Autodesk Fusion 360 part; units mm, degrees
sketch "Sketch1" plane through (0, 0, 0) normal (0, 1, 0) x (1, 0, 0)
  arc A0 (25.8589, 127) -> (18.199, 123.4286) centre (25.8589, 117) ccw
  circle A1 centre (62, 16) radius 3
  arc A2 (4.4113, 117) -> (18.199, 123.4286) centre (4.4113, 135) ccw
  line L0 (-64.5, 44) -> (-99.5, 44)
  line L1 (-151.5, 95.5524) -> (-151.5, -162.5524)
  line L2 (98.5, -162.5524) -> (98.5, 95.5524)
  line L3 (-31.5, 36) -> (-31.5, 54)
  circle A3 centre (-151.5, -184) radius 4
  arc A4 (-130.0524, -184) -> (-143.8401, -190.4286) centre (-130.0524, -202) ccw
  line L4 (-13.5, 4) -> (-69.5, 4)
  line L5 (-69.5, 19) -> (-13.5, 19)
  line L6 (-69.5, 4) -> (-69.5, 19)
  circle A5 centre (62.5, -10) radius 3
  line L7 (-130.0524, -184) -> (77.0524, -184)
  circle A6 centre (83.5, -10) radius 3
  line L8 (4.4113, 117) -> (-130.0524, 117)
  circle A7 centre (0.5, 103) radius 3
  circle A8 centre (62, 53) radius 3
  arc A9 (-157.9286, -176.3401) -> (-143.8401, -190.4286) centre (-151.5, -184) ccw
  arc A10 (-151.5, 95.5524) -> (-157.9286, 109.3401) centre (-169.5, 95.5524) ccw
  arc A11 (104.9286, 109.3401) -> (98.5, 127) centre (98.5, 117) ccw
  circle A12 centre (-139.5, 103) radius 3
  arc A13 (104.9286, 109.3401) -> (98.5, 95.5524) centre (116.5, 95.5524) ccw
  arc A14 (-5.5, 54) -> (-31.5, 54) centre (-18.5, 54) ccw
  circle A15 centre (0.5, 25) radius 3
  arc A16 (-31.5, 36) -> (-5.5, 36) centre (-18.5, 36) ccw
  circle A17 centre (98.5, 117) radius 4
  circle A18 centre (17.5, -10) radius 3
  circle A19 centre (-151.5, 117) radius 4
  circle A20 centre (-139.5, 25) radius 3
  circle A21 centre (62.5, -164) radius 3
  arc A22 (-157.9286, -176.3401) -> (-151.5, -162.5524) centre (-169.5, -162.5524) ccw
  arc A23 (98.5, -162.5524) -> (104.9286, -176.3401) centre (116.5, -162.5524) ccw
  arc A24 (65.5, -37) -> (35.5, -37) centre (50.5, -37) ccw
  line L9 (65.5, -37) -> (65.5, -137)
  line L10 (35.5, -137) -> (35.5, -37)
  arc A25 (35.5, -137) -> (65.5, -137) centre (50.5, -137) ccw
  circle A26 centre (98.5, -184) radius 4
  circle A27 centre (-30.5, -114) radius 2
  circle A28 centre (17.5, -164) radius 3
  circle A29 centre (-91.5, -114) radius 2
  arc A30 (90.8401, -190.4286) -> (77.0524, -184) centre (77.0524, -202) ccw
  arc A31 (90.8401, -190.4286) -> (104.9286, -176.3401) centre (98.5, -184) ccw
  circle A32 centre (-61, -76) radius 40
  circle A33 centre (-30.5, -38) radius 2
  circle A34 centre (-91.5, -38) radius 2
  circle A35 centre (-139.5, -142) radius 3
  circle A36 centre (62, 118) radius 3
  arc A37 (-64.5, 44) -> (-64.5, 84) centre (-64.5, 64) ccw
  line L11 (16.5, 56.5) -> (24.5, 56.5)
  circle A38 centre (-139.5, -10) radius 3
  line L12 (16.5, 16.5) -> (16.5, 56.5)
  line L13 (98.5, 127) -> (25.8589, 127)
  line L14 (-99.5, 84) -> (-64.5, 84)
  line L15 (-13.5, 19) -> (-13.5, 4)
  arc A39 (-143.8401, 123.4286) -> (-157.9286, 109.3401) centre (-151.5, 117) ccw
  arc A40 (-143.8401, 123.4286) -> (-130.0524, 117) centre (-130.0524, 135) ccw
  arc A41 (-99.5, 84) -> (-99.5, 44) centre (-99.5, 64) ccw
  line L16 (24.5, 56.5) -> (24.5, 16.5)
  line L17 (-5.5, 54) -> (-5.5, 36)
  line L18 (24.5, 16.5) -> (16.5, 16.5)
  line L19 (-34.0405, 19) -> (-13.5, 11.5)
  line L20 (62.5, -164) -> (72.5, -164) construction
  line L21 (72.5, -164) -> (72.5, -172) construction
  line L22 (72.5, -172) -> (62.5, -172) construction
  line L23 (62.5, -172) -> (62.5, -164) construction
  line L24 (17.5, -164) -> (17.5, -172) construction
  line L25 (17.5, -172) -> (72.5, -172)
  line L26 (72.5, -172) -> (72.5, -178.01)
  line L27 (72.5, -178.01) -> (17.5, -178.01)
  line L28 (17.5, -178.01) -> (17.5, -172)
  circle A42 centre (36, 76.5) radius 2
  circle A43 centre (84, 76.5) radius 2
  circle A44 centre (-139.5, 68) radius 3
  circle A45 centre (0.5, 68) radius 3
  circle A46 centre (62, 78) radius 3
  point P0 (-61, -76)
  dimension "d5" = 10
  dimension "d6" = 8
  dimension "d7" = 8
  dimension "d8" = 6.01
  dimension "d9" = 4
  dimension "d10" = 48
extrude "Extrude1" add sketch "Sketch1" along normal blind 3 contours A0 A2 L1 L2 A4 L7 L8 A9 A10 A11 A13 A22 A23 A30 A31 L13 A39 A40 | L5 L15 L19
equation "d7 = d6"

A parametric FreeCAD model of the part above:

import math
import FreeCAD as App
import Part
import Sketcher


def add_polygon(sketch, points):
    """Adds a closed chain of lines whose ends are joined by coincident constraints."""
    first, n = sketch.GeometryCount, len(points)
    for a, b in zip(points, points[1:] + points[:1]):
        sketch.addGeometry(Part.LineSegment(App.Vector(*a, 0), App.Vector(*b, 0)), False)
    for i in range(n):
        sketch.addConstraint(Sketcher.Constraint("Coincident", first + i, 2, first + (i + 1) % n, 1))

doc = App.newDocument("Part")
body = doc.addObject("PartDesign::Body", "Body")

# Sketch on XZ plane
sketch1 = doc.addObject("Sketcher::SketchObject", "Sketch")
body.addObject(sketch1)
sketch1.AttachmentSupport = (doc.XZ_Plane, [""])
sketch1.MapMode = "FlatFace"
sketch1.addGeometry(Part.LineSegment(App.Vector(98.5, -127, 0), App.Vector(25.8589, -127, 0)), False)  # 0
sketch1.addGeometry(Part.ArcOfCircle(Part.Circle(App.Vector(25.8589, -117, 0), App.Vector(0, 0, 1), 10), math.radians(-139.994818), math.radians(-90)), False)  # 1
sketch1.addGeometry(Part.ArcOfCircle(Part.Circle(App.Vector(4.4113, -135, 0), App.Vector(0, 0, 1), 18), math.radians(40.005233), math.radians(90)), False)  # 2
sketch1.addGeometry(Part.LineSegment(App.Vector(4.4113, -117, 0), App.Vector(-130.0524, -117, 0)), False)  # 3
sketch1.addGeometry(Part.ArcOfCircle(Part.Circle(App.Vector(-130.0524, -135, 0), App.Vector(0, 0, 1), 17.999944), math.radians(90), math.radians(139.994767)), False)  # 4
sketch1.addGeometry(Part.ArcOfCircle(Part.Circle(App.Vector(-151.5, -117, 0), App.Vector(0, 0, 1), 10.000048), math.radians(130.005182), math.radians(319.994818)), False)  # 5
sketch1.addGeometry(Part.ArcOfCircle(Part.Circle(App.Vector(-169.5, -95.5524, 0), App.Vector(0, 0, 1), 18), math.radians(-49.994767), math.radians(0)), False)  # 6
sketch1.addGeometry(Part.LineSegment(App.Vector(-151.5, -95.5524, 0), App.Vector(-151.5, 162.5524, 0)), False)  # 7
sketch1.addGeometry(Part.ArcOfCircle(Part.Circle(App.Vector(-169.5, 162.5524, 0), App.Vector(0, 0, 1), 17.999944), math.radians(0), math.radians(49.994767)), False)  # 8
sketch1.addGeometry(Part.ArcOfCircle(Part.Circle(App.Vector(-151.5, 184, 0), App.Vector(0, 0, 1), 10.000048), math.radians(40.005182), math.radians(229.994818)), False)  # 9
sketch1.addGeometry(Part.ArcOfCircle(Part.Circle(App.Vector(-130.0524, 202, 0), App.Vector(0, 0, 1), 18), math.radians(-139.994767), math.radians(-90)), False)  # 10
sketch1.addGeometry(Part.LineSegment(App.Vector(-130.0524, 184, 0), App.Vector(77.0524, 184, 0)), False)  # 11
sketch1.addGeometry(Part.ArcOfCircle(Part.Circle(App.Vector(77.0524, 202, 0), App.Vector(0, 0, 1), 17.999944), math.radians(-90), math.radians(-40.005233)), False)  # 12
sketch1.addGeometry(Part.ArcOfCircle(Part.Circle(App.Vector(98.5, 184, 0), App.Vector(0, 0, 1), 10.000048), math.radians(-49.994818), math.radians(139.994818)), False)  # 13
sketch1.addGeometry(Part.ArcOfCircle(Part.Circle(App.Vector(116.5, 162.5524, 0), App.Vector(0, 0, 1), 18), math.radians(130.005233), math.radians(180)), False)  # 14
sketch1.addGeometry(Part.LineSegment(App.Vector(98.5, 162.5524, 0), App.Vector(98.5, -95.5524, 0)), False)  # 15
sketch1.addGeometry(Part.ArcOfCircle(Part.Circle(App.Vector(116.5, -95.5524, 0), App.Vector(0, 0, 1), 17.999944), math.radians(180), math.radians(229.994767)), False)  # 16
sketch1.addGeometry(Part.ArcOfCircle(Part.Circle(App.Vector(98.5, -117, 0), App.Vector(0, 0, 1), 10.000048), math.radians(-90), math.radians(49.994818)), False)  # 17
sketch1.addGeometry(Part.Circle(App.Vector(-151.5, 184, 0), App.Vector(0, 0, 1), 4), False)  # 18
sketch1.addGeometry(Part.Circle(App.Vector(-139.5, 142, 0), App.Vector(0, 0, 1), 3), False)  # 19
sketch1.addGeometry(Part.Circle(App.Vector(-91.5, 114, 0), App.Vector(0, 0, 1), 2), False)  # 20
sketch1.addGeometry(Part.Circle(App.Vector(-30.5, 114, 0), App.Vector(0, 0, 1), 2), False)  # 21
sketch1.addGeometry(Part.Circle(App.Vector(-61, 76, 0), App.Vector(0, 0, 1), 40), False)  # 22
sketch1.addGeometry(Part.Circle(App.Vector(-91.5, 38, 0), App.Vector(0, 0, 1), 2), False)  # 23
sketch1.addGeometry(Part.Circle(App.Vector(-30.5, 38, 0), App.Vector(0, 0, 1), 2), False)  # 24
sketch1.addGeometry(Part.Circle(App.Vector(17.5, 164, 0), App.Vector(0, 0, 1), 3), False)  # 25
add_polygon(sketch1, [(17.5, 178.01), (17.5, 172), (72.5, 172), (72.5, 178.01)])  # lines 26-29
sketch1.addGeometry(Part.Circle(App.Vector(62.5, 164, 0), App.Vector(0, 0, 1), 3), False)  # 30
sketch1.addGeometry(Part.Circle(App.Vector(98.5, 184, 0), App.Vector(0, 0, 1), 4), False)  # 31
sketch1.addGeometry(Part.ArcOfCircle(Part.Circle(App.Vector(50.5, 37, 0), App.Vector(0, 0, 1), 15), math.radians(180), math.radians(360)), False)  # 32
sketch1.addGeometry(Part.LineSegment(App.Vector(65.5, 37, 0), App.Vector(65.5, 137, 0)), False)  # 33
sketch1.addGeometry(Part.ArcOfCircle(Part.Circle(App.Vector(50.5, 137, 0), App.Vector(0, 0, 1), 15), math.radians(0), math.radians(180)), False)  # 34
sketch1.addGeometry(Part.LineSegment(App.Vector(35.5, 137, 0), App.Vector(35.5, 37, 0)), False)  # 35
sketch1.addGeometry(Part.Circle(App.Vector(-139.5, 10, 0), App.Vector(0, 0, 1), 3), False)  # 36
sketch1.addGeometry(Part.Circle(App.Vector(-139.5, -25, 0), App.Vector(0, 0, 1), 3), False)  # 37
add_polygon(sketch1, [(-13.5, -11.5), (-13.5, -4), (-69.5, -4), (-69.5, -19), (-34.0405, -19)])  # lines 38-42
sketch1.addGeometry(Part.Circle(App.Vector(-139.5, -68, 0), App.Vector(0, 0, 1), 3), False)  # 43
sketch1.addGeometry(Part.Circle(App.Vector(-139.5, -103, 0), App.Vector(0, 0, 1), 3), False)  # 44
sketch1.addGeometry(Part.Circle(App.Vector(-151.5, -117, 0), App.Vector(0, 0, 1), 4), False)  # 45
sketch1.addGeometry(Part.ArcOfCircle(Part.Circle(App.Vector(-64.5, -64, 0), App.Vector(0, 0, 1), 20), math.radians(-90), math.radians(90)), False)  # 46
sketch1.addGeometry(Part.LineSegment(App.Vector(-64.5, -44, 0), App.Vector(-99.5, -44, 0)), False)  # 47
sketch1.addGeometry(Part.ArcOfCircle(Part.Circle(App.Vector(-99.5, -64, 0), App.Vector(0, 0, 1), 20), math.radians(90), math.radians(270)), False)  # 48
sketch1.addGeometry(Part.LineSegment(App.Vector(-99.5, -84, 0), App.Vector(-64.5, -84, 0)), False)  # 49
sketch1.addGeometry(Part.Circle(App.Vector(17.5, 10, 0), App.Vector(0, 0, 1), 3), False)  # 50
sketch1.addGeometry(Part.Circle(App.Vector(0.5, -25, 0), App.Vector(0, 0, 1), 3), False)  # 51
sketch1.addGeometry(Part.ArcOfCircle(Part.Circle(App.Vector(-18.5, -36, 0), App.Vector(0, 0, 1), 13), math.radians(0), math.radians(180)), False)  # 52
sketch1.addGeometry(Part.LineSegment(App.Vector(-31.5, -36, 0), App.Vector(-31.5, -54, 0)), False)  # 53
sketch1.addGeometry(Part.ArcOfCircle(Part.Circle(App.Vector(-18.5, -54, 0), App.Vector(0, 0, 1), 13), math.radians(180), math.radians(360)), False)  # 54
sketch1.addGeometry(Part.LineSegment(App.Vector(-5.5, -54, 0), App.Vector(-5.5, -36, 0)), False)  # 55
add_polygon(sketch1, [(16.5, -16.5), (16.5, -56.5), (24.5, -56.5), (24.5, -16.5)])  # lines 56-59
sketch1.addGeometry(Part.Circle(App.Vector(62.5, 10, 0), App.Vector(0, 0, 1), 3), False)  # 60
sketch1.addGeometry(Part.Circle(App.Vector(83.5, 10, 0), App.Vector(0, 0, 1), 3), False)  # 61
sketch1.addGeometry(Part.Circle(App.Vector(62, -16, 0), App.Vector(0, 0, 1), 3), False)  # 62
sketch1.addGeometry(Part.Circle(App.Vector(0.5, -68, 0), App.Vector(0, 0, 1), 3), False)  # 63
sketch1.addGeometry(Part.Circle(App.Vector(36, -76.5, 0), App.Vector(0, 0, 1), 2), False)  # 64
sketch1.addGeometry(Part.Circle(App.Vector(0.5, -103, 0), App.Vector(0, 0, 1), 3), False)  # 65
sketch1.addGeometry(Part.Circle(App.Vector(62, -53, 0), App.Vector(0, 0, 1), 3), False)  # 66
sketch1.addGeometry(Part.Circle(App.Vector(62, -78, 0), App.Vector(0, 0, 1), 3), False)  # 67
sketch1.addGeometry(Part.Circle(App.Vector(84, -76.5, 0), App.Vector(0, 0, 1), 2), False)  # 68
sketch1.addGeometry(Part.Circle(App.Vector(62, -118, 0), App.Vector(0, 0, 1), 3), False)  # 69
sketch1.addGeometry(Part.Circle(App.Vector(98.5, -117, 0), App.Vector(0, 0, 1), 4), False)  # 70
sketch1.addConstraint(Sketcher.Constraint("Tangent", 0, 2, 1, 2))
sketch1.addConstraint(Sketcher.Constraint("Tangent", 1, 1, 2, 1))
sketch1.addConstraint(Sketcher.Constraint("Tangent", 2, 2, 3, 1))
sketch1.addConstraint(Sketcher.Constraint("Tangent", 3, 2, 4, 1))
sketch1.addConstraint(Sketcher.Constraint("Tangent", 4, 2, 5, 2))
sketch1.addConstraint(Sketcher.Constraint("Tangent", 5, 1, 6, 1))
sketch1.addConstraint(Sketcher.Constraint("Tangent", 6, 2, 7, 1))
sketch1.addConstraint(Sketcher.Constraint("Tangent", 7, 2, 8, 1))
sketch1.addConstraint(Sketcher.Constraint("Tangent", 8, 2, 9, 2))
sketch1.addConstraint(Sketcher.Constraint("Tangent", 9, 1, 10, 1))
sketch1.addConstraint(Sketcher.Constraint("Tangent", 10, 2, 11, 1))
sketch1.addConstraint(Sketcher.Constraint("Tangent", 11, 2, 12, 1))
sketch1.addConstraint(Sketcher.Constraint("Tangent", 12, 2, 13, 2))
sketch1.addConstraint(Sketcher.Constraint("Tangent", 13, 1, 14, 1))
sketch1.addConstraint(Sketcher.Constraint("Tangent", 14, 2, 15, 1))
sketch1.addConstraint(Sketcher.Constraint("Tangent", 15, 2, 16, 1))
sketch1.addConstraint(Sketcher.Constraint("Tangent", 16, 2, 17, 2))
sketch1.addConstraint(Sketcher.Constraint("Tangent", 17, 1, 0, 1))
sketch1.addConstraint(Sketcher.Constraint("Tangent", 32, 2, 33, 1))
sketch1.addConstraint(Sketcher.Constraint("Tangent", 33, 2, 34, 1))
sketch1.addConstraint(Sketcher.Constraint("Tangent", 34, 2, 35, 1))
sketch1.addConstraint(Sketcher.Constraint("Tangent", 35, 2, 32, 1))
sketch1.addConstraint(Sketcher.Constraint("Tangent", 46, 2, 47, 1))
sketch1.addConstraint(Sketcher.Constraint("Tangent", 47, 2, 48, 1))
sketch1.addConstraint(Sketcher.Constraint("Tangent", 48, 2, 49, 1))
sketch1.addConstraint(Sketcher.Constraint("Tangent", 49, 2, 46, 1))
sketch1.addConstraint(Sketcher.Constraint("Tangent", 52, 2, 53, 1))
sketch1.addConstraint(Sketcher.Constraint("Tangent", 53, 2, 54, 1))
sketch1.addConstraint(Sketcher.Constraint("Tangent", 54, 2, 55, 1))
sketch1.addConstraint(Sketcher.Constraint("Tangent", 55, 2, 52, 1))
sketch1.addConstraint(Sketcher.Constraint("Horizontal", 0))
sketch1.addConstraint(Sketcher.Constraint("Horizontal", 3))
sketch1.addConstraint(Sketcher.Constraint("Vertical", 7))
sketch1.addConstraint(Sketcher.Constraint("Horizontal", 11))
sketch1.addConstraint(Sketcher.Constraint("Vertical", 15))
sketch1.addConstraint(Sketcher.Constraint("Vertical", 26))
sketch1.addConstraint(Sketcher.Constraint("Horizontal", 27))
sketch1.addConstraint(Sketcher.Constraint("Vertical", 28))
sketch1.addConstraint(Sketcher.Constraint("Horizontal", 29))
sketch1.addConstraint(Sketcher.Constraint("Vertical", 33))
sketch1.addConstraint(Sketcher.Constraint("Vertical", 35))
sketch1.addConstraint(Sketcher.Constraint("Vertical", 38))
sketch1.addConstraint(Sketcher.Constraint("Horizontal", 39))
sketch1.addConstraint(Sketcher.Constraint("Vertical", 40))
sketch1.addConstraint(Sketcher.Constraint("Horizontal", 41))
sketch1.addConstraint(Sketcher.Constraint("Horizontal", 47))
sketch1.addConstraint(Sketcher.Constraint("Horizontal", 49))
sketch1.addConstraint(Sketcher.Constraint("Vertical", 53))
sketch1.addConstraint(Sketcher.Constraint("Vertical", 55))
sketch1.addConstraint(Sketcher.Constraint("Vertical", 56))
sketch1.addConstraint(Sketcher.Constraint("Horizontal", 57))
sketch1.addConstraint(Sketcher.Constraint("Vertical", 58))
sketch1.addConstraint(Sketcher.Constraint("Horizontal", 59))
sketch1.addConstraint(Sketcher.Constraint("Coincident", 18, 3, 9, 3))
sketch1.addConstraint(Sketcher.Constraint("Coincident", 31, 3, 13, 3))
sketch1.addConstraint(Sketcher.Constraint("Coincident", 45, 3, 5, 3))
sketch1.addConstraint(Sketcher.Constraint("Coincident", 70, 3, 17, 3))
sketch1.addConstraint(Sketcher.Constraint("Equal", 2, 4))
sketch1.addConstraint(Sketcher.Constraint("Equal", 1, 5))
sketch1.addConstraint(Sketcher.Constraint("Equal", 4, 6))
sketch1.addConstraint(Sketcher.Constraint("Equal", 6, 8))
sketch1.addConstraint(Sketcher.Constraint("Equal", 5, 9))
sketch1.addConstraint(Sketcher.Constraint("Equal", 8, 10))
sketch1.addConstraint(Sketcher.Constraint("Equal", 10, 12))
sketch1.addConstraint(Sketcher.Constraint("Equal", 9, 13))
sketch1.addConstraint(Sketcher.Constraint("Equal", 12, 14))
sketch1.addConstraint(Sketcher.Constraint("Equal", 14, 16))
sketch1.addConstraint(Sketcher.Constraint("Equal", 13, 17))
sketch1.addConstraint(Sketcher.Constraint("Equal", 20, 21))
sketch1.addConstraint(Sketcher.Constraint("Equal", 21, 23))
sketch1.addConstraint(Sketcher.Constraint("Equal", 23, 24))
sketch1.addConstraint(Sketcher.Constraint("Equal", 19, 25))
sketch1.addConstraint(Sketcher.Constraint("Equal", 25, 30))
sketch1.addConstraint(Sketcher.Constraint("Equal", 18, 31))
sketch1.addConstraint(Sketcher.Constraint("Equal", 30, 36))
sketch1.addConstraint(Sketcher.Constraint("Equal", 36, 37))
sketch1.addConstraint(Sketcher.Constraint("Equal", 37, 43))
sketch1.addConstraint(Sketcher.Constraint("Equal", 43, 44))
sketch1.addConstraint(Sketcher.Constraint("Equal", 31, 45))
sketch1.addConstraint(Sketcher.Constraint("Equal", 44, 50))
sketch1.addConstraint(Sketcher.Constraint("Equal", 50, 51))
sketch1.addConstraint(Sketcher.Constraint("Equal", 51, 60))
sketch1.addConstraint(Sketcher.Constraint("Equal", 60, 61))
sketch1.addConstraint(Sketcher.Constraint("Equal", 61, 62))
sketch1.addConstraint(Sketcher.Constraint("Equal", 62, 63))
sketch1.addConstraint(Sketcher.Constraint("Equal", 24, 64))
sketch1.addConstraint(Sketcher.Constraint("Equal", 63, 65))
sketch1.addConstraint(Sketcher.Constraint("Equal", 65, 66))
sketch1.addConstraint(Sketcher.Constraint("Equal", 66, 67))
sketch1.addConstraint(Sketcher.Constraint("Equal", 64, 68))
sketch1.addConstraint(Sketcher.Constraint("Equal", 67, 69))
sketch1.addConstraint(Sketcher.Constraint("Equal", 45, 70))
sketch1.addConstraint(Sketcher.Constraint("Horizontal", 1, 3, 5, 3))
sketch1.addConstraint(Sketcher.Constraint("Horizontal", 9, 3, 13, 3))
sketch1.addConstraint(Sketcher.Constraint("Horizontal", 8, 3, 14, 3))
sketch1.addConstraint(Sketcher.Constraint("Horizontal", 6, 3, 16, 3))
sketch1.addConstraint(Sketcher.Constraint("Horizontal", 20, 3, 21, 3))
sketch1.addConstraint(Sketcher.Constraint("Horizontal", 23, 3, 24, 3))
sketch1.addConstraint(Sketcher.Constraint("Horizontal", 25, 3, 30, 3))
sketch1.addConstraint(Sketcher.Constraint("Horizontal", 36, 3, 50, 3))
sketch1.addConstraint(Sketcher.Constraint("Horizontal", 37, 3, 51, 3))
sketch1.addConstraint(Sketcher.Constraint("Horizontal", 50, 3, 60, 3))
sketch1.addConstraint(Sketcher.Constraint("Horizontal", 60, 3, 61, 3))
sketch1.addConstraint(Sketcher.Constraint("Horizontal", 43, 3, 63, 3))
sketch1.addConstraint(Sketcher.Constraint("Horizontal", 44, 3, 65, 3))
sketch1.addConstraint(Sketcher.Constraint("Horizontal", 64, 3, 68, 3))
sketch1.addConstraint(Sketcher.Constraint("Horizontal", 70, 3, 2, 2))
sketch1.addConstraint(Sketcher.Constraint("Horizontal", 31, 3, 10, 2))
sketch1.addConstraint(Sketcher.Constraint("Vertical", 5, 3, 9, 3))
sketch1.addConstraint(Sketcher.Constraint("Vertical", 20, 3, 23, 3))
sketch1.addConstraint(Sketcher.Constraint("Vertical", 21, 3, 24, 3))
sketch1.addConstraint(Sketcher.Constraint("Vertical", 19, 3, 36, 3))
sketch1.addConstraint(Sketcher.Constraint("Vertical", 36, 3, 37, 3))
sketch1.addConstraint(Sketcher.Constraint("Vertical", 37, 3, 43, 3))
sketch1.addConstraint(Sketcher.Constraint("Vertical", 43, 3, 44, 3))
sketch1.addConstraint(Sketcher.Constraint("Vertical", 25, 3, 50, 3))
sketch1.addConstraint(Sketcher.Constraint("Vertical", 30, 3, 60, 3))
sketch1.addConstraint(Sketcher.Constraint("Vertical", 51, 3, 63, 3))
sketch1.addConstraint(Sketcher.Constraint("Vertical", 63, 3, 65, 3))
sketch1.addConstraint(Sketcher.Constraint("Vertical", 62, 3, 66, 3))
sketch1.addConstraint(Sketcher.Constraint("Vertical", 66, 3, 67, 3))
sketch1.addConstraint(Sketcher.Constraint("Vertical", 67, 3, 69, 3))
sketch1.addConstraint(Sketcher.Constraint("Vertical", 45, 3, 6, 2))
sketch1.addConstraint(Sketcher.Constraint("Vertical", 50, 3, 26, 2))
sketch1.addConstraint(Sketcher.Constraint("Diameter", 18, 8.0))
sketch1.addConstraint(Sketcher.Constraint("Diameter", 20, 4.0))
sketch1.addConstraint(Sketcher.Constraint("Radius", 1, 10.0))
sketch1.addConstraint(Sketcher.Constraint("DistanceX", 57, 1, 57, 2, 8.0))
sketch1.addConstraint(Sketcher.Constraint("Diameter", 19, 6.0))
sketch1.addConstraint(Sketcher.Constraint("Diameter", 22, 80.0))
sketch1.addConstraint(Sketcher.Constraint("DistanceY", -1, 1, 36, 3, 10.0))
sketch1.addConstraint(Sketcher.Constraint("DistanceY", 38, 2, -1, 1, 4.0))
sketch1.addConstraint(Sketcher.Constraint("Radius", 2, 18.0))
sketch1.addConstraint(Sketcher.Constraint("Radius", 32, 15.0))
sketch1.addConstraint(Sketcher.Constraint("Radius", 46, 20.0))
sketch1.addConstraint(Sketcher.Constraint("Radius", 52, 13.0))
sketch1.addConstraint(Sketcher.Constraint("DistanceY", 26, 2, 26, 1, 6.01))
sketch1.addConstraint(Sketcher.Constraint("DistanceX", 27, 1, 27, 2, 55.0))
sketch1.addConstraint(Sketcher.Constraint("DistanceX", 39, 2, 39, 1, 56.0))
sketch1.addConstraint(Sketcher.Constraint("DistanceX", 47, 2, 47, 1, 35.0))
sketch1.addConstraint(Sketcher.Constraint("DistanceY", 33, 1, 33, 2, 100.0))
sketch1.addConstraint(Sketcher.Constraint("DistanceY", 40, 2, 40, 1, 15.0))
sketch1.addConstraint(Sketcher.Constraint("DistanceY", 53, 2, 53, 1, 18.0))
sketch1.addConstraint(Sketcher.Constraint("DistanceY", 56, 2, 56, 1, 40.0))
sketch1.addConstraint(Sketcher.Constraint("DistanceY", 38, 1, 38, 2, 7.5))
sketch1.addConstraint(Sketcher.Constraint("DistanceY", 1, 3, -1, 1, 117.0))
sketch1.addConstraint(Sketcher.Constraint("DistanceY", -1, 1, 9, 3, 184.0))
sketch1.addConstraint(Sketcher.Constraint("DistanceY", -1, 1, 19, 3, 142.0))
sketch1.addConstraint(Sketcher.Constraint("DistanceY", -1, 1, 20, 3, 114.0))
sketch1.addConstraint(Sketcher.Constraint("DistanceX", 22, 3, -1, 1, 61.0))
sketch1.addConstraint(Sketcher.Constraint("DistanceY", -1, 1, 22, 3, 76.0))
sketch1.addConstraint(Sketcher.Constraint("DistanceY", -1, 1, 23, 3, 38.0))
sketch1.addConstraint(Sketcher.Constraint("DistanceY", -1, 1, 25, 3, 164.0))
sketch1.addConstraint(Sketcher.Constraint("DistanceY", -1, 1, 32, 3, 37.0))
sketch1.addConstraint(Sketcher.Constraint("DistanceY", 37, 3, -1, 1, 25.0))
sketch1.addConstraint(Sketcher.Constraint("DistanceY", 43, 3, -1, 1, 68.0))
sketch1.addConstraint(Sketcher.Constraint("DistanceY", 44, 3, -1, 1, 103.0))
sketch1.addConstraint(Sketcher.Constraint("DistanceY", 46, 3, -1, 1, 64.0))
sketch1.addConstraint(Sketcher.Constraint("DistanceY", 52, 3, -1, 1, 36.0))
sketch1.addConstraint(Sketcher.Constraint("DistanceX", -1, 1, 62, 3, 62.0))
sketch1.addConstraint(Sketcher.Constraint("DistanceY", 62, 3, -1, 1, 16.0))
sketch1.addConstraint(Sketcher.Constraint("DistanceX", -1, 1, 64, 3, 36.0))
sketch1.addConstraint(Sketcher.Constraint("DistanceY", 66, 3, -1, 1, 53.0))
sketch1.addConstraint(Sketcher.Constraint("DistanceY", 67, 3, -1, 1, 78.0))
sketch1.addConstraint(Sketcher.Constraint("DistanceX", -1, 1, 68, 3, 84.0))
sketch1.addConstraint(Sketcher.Constraint("DistanceY", 69, 3, -1, 1, 118.0))
sketch1.addConstraint(Sketcher.Constraint("DistanceY", -1, 1, 26, 2, 172.0))
sketch1.addConstraint(Sketcher.Constraint("DistanceX", 5, 3, -1, 1, 151.5))
sketch1.addConstraint(Sketcher.Constraint("DistanceX", -1, 1, 13, 3, 98.5))
sketch1.addConstraint(Sketcher.Constraint("DistanceX", 19, 3, -1, 1, 139.5))
sketch1.addConstraint(Sketcher.Constraint("DistanceX", 20, 3, -1, 1, 91.5))
sketch1.addConstraint(Sketcher.Constraint("DistanceX", 21, 3, -1, 1, 30.5))
sketch1.addConstraint(Sketcher.Constraint("DistanceX", -1, 1, 25, 3, 17.5))
sketch1.addConstraint(Sketcher.Constraint("DistanceX", -1, 1, 30, 3, 62.5))
sketch1.addConstraint(Sketcher.Constraint("DistanceX", -1, 1, 32, 3, 50.5))
sketch1.addConstraint(Sketcher.Constraint("DistanceX", 46, 3, -1, 1, 64.5))
sketch1.addConstraint(Sketcher.Constraint("DistanceX", -1, 1, 51, 3, 0.5))
sketch1.addConstraint(Sketcher.Constraint("DistanceX", 52, 3, -1, 1, 18.5))
sketch1.addConstraint(Sketcher.Constraint("DistanceX", -1, 1, 61, 3, 83.5))
sketch1.addConstraint(Sketcher.Constraint("DistanceY", 64, 3, -1, 1, 76.5))
sketch1.addConstraint(Sketcher.Constraint("DistanceX", 38, 2, -1, 1, 13.5))
sketch1.addConstraint(Sketcher.Constraint("DistanceX", -1, 1, 56, 2, 16.5))
sketch1.addConstraint(Sketcher.Constraint("DistanceY", 56, 2, -1, 1, 56.5))
sketch1.addConstraint(Sketcher.Constraint("DistanceX", 0, 2, 0, 1, 72.641))
sketch1.addConstraint(Sketcher.Constraint("Distance", 42, 21.867))
pad1 = doc.addObject("PartDesign::Pad", "Pad")
body.addObject(pad1)
pad1.Profile = sketch1
pad1.Length = 3
pad1.Reversed = True

doc.recompute()
